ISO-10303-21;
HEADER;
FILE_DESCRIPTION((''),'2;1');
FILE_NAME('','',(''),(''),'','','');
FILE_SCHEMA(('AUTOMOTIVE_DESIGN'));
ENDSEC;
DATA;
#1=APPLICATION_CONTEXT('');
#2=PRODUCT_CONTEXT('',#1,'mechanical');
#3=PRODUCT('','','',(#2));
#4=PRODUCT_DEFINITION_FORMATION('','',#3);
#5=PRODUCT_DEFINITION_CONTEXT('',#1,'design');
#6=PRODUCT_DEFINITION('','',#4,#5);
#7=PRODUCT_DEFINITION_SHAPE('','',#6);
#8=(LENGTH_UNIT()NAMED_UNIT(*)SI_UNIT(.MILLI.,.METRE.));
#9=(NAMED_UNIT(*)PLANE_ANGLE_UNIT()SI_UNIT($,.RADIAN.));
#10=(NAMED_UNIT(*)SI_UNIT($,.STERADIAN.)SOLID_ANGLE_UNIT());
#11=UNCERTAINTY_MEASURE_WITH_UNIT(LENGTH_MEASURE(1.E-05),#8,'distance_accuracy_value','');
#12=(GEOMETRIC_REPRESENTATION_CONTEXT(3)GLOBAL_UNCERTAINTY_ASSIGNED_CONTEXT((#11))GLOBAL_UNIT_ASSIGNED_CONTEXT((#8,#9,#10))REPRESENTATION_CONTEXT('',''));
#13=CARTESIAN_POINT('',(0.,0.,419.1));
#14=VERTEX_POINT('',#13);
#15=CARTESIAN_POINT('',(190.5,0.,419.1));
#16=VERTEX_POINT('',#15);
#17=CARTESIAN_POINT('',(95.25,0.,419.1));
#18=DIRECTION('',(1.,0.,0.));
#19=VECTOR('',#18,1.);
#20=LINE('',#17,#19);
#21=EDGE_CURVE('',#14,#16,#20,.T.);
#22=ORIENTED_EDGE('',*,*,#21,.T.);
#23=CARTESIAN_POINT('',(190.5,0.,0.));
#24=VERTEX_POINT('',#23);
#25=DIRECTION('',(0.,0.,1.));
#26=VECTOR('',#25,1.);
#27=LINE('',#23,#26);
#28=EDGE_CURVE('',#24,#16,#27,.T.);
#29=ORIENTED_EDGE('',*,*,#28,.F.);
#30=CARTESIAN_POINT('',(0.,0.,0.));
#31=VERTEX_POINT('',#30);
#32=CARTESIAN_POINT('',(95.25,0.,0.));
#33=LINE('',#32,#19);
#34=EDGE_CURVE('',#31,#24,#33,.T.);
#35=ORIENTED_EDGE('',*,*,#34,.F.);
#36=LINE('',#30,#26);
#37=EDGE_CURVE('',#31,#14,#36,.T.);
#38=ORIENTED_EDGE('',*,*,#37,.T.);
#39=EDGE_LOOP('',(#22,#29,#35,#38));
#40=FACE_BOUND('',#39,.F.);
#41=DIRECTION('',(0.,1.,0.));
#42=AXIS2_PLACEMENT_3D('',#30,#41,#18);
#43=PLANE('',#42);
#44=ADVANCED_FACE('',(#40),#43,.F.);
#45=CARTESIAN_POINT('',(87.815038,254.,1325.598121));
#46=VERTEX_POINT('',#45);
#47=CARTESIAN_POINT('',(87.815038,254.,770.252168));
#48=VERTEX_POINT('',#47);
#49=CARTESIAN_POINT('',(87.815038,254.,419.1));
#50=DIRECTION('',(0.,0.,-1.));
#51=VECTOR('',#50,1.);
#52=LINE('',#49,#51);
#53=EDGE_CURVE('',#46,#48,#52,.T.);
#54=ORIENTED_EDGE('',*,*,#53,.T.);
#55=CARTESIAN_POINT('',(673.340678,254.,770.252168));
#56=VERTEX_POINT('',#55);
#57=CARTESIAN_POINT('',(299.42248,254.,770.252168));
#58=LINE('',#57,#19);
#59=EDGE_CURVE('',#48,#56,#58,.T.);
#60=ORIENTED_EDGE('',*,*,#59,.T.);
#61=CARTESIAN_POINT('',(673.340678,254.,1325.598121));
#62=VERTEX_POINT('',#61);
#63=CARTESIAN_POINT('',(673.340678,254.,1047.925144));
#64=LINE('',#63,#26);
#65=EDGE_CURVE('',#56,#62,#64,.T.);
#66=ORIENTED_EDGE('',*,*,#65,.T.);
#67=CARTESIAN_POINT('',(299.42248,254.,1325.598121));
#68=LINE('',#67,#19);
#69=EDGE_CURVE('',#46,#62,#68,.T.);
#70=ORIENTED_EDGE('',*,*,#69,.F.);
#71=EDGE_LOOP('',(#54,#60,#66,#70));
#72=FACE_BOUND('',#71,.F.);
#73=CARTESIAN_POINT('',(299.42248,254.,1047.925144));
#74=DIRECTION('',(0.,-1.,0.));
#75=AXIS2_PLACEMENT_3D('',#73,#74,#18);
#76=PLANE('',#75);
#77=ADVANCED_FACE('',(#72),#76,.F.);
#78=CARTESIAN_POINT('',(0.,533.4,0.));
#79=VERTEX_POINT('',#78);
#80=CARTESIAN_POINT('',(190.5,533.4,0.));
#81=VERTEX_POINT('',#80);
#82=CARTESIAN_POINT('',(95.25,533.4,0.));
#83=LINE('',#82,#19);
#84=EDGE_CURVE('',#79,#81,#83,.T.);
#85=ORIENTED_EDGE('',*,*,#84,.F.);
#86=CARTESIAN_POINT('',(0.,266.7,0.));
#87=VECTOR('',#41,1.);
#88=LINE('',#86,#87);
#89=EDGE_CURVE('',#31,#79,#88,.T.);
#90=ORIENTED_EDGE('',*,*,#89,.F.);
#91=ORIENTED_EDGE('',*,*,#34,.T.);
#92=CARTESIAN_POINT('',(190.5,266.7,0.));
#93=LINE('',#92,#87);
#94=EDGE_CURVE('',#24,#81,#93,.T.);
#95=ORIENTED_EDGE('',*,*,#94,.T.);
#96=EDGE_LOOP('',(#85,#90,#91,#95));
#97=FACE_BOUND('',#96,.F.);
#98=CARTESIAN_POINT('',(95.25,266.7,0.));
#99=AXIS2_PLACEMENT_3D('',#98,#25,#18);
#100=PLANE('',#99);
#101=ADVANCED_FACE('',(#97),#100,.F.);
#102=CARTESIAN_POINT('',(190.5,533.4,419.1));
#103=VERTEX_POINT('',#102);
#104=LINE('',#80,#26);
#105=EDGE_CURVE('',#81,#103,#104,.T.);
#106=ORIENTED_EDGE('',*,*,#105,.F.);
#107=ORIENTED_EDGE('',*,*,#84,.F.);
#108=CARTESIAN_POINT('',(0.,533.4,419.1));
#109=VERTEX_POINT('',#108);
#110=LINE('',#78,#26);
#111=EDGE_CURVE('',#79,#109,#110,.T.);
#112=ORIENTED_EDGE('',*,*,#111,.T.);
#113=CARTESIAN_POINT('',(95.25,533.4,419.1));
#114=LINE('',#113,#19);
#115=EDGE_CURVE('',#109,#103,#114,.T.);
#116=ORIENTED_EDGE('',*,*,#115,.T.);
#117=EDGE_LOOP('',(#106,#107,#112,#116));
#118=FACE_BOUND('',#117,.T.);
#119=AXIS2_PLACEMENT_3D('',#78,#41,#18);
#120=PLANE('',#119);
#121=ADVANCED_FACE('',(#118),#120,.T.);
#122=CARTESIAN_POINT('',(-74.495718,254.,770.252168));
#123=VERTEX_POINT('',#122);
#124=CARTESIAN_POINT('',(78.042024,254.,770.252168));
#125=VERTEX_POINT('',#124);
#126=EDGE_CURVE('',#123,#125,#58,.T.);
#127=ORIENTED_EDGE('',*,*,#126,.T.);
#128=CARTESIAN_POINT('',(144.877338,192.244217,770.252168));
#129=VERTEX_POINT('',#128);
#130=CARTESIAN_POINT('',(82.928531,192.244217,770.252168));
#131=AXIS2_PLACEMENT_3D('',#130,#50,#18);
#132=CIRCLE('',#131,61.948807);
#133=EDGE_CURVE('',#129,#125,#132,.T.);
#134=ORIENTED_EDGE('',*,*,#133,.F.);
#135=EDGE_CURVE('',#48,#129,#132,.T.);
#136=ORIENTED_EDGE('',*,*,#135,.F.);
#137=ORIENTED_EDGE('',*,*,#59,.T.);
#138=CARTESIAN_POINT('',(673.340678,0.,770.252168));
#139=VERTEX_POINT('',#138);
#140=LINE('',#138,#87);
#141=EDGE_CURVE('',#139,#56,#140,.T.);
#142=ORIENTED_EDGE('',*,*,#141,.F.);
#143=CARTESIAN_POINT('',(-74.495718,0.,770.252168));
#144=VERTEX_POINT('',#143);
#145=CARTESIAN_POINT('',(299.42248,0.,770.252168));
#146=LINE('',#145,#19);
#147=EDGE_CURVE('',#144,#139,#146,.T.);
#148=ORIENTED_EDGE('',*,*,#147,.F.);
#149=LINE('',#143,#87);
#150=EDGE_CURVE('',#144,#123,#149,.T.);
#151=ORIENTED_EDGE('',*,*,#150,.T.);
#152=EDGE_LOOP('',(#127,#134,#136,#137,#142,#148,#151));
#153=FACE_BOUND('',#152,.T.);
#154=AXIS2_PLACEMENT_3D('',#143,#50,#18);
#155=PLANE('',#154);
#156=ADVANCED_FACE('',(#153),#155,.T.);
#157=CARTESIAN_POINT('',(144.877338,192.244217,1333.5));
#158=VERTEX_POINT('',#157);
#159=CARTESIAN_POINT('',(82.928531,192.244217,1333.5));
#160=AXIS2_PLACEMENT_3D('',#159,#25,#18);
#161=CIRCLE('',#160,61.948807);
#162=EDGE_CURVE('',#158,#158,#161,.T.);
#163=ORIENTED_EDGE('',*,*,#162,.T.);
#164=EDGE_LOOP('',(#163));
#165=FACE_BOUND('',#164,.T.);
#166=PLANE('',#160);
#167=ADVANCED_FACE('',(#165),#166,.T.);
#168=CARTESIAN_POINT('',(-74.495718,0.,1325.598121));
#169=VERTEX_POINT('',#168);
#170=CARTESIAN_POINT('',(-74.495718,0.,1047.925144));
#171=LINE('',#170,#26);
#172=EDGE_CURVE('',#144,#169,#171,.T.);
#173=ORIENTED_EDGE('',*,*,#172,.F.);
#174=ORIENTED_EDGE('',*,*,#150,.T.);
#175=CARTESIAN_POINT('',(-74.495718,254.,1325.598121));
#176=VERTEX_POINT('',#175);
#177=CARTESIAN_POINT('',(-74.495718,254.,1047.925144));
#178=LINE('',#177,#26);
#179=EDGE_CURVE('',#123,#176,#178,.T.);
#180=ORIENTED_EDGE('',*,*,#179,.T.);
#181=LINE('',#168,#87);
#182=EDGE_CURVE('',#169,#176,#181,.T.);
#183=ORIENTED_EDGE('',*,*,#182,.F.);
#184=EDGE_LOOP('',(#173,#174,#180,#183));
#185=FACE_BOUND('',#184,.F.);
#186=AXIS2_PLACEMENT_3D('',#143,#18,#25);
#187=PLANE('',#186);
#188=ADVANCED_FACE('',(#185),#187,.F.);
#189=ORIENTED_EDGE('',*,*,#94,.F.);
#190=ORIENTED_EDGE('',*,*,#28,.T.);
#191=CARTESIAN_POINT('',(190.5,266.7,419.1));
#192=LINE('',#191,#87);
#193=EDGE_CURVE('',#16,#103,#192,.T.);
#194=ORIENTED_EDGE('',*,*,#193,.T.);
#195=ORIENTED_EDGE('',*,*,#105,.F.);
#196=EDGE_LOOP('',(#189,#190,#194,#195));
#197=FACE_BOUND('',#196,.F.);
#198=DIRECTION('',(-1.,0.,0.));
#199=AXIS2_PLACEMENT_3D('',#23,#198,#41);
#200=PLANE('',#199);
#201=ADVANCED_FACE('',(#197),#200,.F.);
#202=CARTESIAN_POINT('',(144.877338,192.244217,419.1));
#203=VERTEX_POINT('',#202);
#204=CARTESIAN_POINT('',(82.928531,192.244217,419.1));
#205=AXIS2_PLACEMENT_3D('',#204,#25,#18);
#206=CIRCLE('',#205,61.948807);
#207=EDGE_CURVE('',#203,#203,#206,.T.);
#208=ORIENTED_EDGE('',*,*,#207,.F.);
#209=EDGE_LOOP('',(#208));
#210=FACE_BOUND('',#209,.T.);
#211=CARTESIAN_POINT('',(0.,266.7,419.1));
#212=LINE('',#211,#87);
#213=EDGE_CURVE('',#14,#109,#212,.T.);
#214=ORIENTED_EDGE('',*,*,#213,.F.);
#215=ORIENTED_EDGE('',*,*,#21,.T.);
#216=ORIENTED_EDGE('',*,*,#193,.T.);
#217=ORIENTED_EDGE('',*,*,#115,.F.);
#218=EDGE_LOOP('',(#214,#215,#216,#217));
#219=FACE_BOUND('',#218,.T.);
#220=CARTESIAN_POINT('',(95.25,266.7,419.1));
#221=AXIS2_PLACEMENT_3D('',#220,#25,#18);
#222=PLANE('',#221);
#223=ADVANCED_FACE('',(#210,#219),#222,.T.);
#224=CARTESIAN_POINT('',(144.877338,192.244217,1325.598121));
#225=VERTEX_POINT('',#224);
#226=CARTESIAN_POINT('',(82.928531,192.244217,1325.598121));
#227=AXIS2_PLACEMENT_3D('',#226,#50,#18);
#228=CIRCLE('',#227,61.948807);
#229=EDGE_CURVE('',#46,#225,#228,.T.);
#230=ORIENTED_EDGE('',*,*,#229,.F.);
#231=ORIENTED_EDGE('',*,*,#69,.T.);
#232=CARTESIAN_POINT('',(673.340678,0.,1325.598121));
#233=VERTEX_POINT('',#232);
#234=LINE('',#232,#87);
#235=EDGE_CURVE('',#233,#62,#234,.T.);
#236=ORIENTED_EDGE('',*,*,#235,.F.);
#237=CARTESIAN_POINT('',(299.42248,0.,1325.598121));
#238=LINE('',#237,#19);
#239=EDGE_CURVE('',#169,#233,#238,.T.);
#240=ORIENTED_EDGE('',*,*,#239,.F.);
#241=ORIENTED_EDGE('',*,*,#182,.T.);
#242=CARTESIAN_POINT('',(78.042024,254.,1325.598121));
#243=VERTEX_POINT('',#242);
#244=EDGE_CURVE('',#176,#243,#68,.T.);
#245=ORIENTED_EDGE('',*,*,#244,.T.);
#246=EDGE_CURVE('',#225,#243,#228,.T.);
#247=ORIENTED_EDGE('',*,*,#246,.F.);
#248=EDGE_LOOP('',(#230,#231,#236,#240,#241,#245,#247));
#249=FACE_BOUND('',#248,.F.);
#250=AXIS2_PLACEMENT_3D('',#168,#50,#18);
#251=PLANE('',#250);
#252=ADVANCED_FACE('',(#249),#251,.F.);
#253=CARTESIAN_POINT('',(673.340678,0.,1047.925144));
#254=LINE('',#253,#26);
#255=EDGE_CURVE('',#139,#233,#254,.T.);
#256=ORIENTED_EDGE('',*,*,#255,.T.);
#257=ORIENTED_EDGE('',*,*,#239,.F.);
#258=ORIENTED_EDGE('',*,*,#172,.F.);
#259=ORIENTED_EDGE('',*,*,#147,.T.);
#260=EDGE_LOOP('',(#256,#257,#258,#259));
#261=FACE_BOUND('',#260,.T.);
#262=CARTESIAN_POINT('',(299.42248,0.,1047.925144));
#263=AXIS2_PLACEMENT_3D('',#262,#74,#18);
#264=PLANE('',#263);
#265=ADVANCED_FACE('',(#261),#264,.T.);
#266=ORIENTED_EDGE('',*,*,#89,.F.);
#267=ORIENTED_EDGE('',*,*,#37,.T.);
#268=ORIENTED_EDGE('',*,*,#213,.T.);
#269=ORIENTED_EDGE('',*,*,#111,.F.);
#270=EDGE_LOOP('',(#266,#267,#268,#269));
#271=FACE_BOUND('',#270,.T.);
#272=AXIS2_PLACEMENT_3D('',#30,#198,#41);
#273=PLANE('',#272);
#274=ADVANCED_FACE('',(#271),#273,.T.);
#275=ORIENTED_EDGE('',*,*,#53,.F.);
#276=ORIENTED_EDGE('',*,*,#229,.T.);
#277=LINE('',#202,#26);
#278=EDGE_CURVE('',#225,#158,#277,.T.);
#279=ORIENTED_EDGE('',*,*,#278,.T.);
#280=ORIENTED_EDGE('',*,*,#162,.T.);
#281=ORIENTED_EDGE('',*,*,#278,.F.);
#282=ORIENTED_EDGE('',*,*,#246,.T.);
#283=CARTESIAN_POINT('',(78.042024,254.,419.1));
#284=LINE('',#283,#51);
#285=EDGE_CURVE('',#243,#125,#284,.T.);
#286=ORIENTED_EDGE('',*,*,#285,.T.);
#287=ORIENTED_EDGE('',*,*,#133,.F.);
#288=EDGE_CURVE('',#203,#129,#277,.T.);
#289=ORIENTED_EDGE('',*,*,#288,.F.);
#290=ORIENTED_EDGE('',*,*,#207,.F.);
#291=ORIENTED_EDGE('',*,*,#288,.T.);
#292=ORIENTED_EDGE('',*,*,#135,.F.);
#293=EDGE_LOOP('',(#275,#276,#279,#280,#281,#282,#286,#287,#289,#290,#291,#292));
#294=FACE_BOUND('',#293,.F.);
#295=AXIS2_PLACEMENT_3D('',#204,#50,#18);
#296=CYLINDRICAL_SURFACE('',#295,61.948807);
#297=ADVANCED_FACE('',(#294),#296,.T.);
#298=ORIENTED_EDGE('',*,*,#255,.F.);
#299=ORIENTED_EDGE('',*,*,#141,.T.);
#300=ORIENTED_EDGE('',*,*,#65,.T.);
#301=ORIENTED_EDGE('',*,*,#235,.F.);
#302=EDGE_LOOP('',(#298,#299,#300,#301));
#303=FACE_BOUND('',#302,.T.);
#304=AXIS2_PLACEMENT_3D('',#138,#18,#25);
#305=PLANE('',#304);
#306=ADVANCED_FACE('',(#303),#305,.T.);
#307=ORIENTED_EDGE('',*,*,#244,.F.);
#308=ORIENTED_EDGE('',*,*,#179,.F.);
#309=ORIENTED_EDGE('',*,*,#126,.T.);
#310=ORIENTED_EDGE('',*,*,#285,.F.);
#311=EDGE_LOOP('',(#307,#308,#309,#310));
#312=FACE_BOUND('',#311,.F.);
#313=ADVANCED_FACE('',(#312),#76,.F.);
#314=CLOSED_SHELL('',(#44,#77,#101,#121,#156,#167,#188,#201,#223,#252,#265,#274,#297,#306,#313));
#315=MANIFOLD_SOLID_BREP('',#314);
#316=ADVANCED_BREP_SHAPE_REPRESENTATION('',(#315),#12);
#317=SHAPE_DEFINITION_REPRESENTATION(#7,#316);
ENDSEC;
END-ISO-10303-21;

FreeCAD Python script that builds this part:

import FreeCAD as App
import Part
import Sketcher
Q = App.Units.Quantity

doc = App.newDocument("Part")
params = doc.addObject("Spreadsheet::Sheet", "Params")
for row, (alias, value) in enumerate([
    ("sketch1_height", "21 in"),
    ("sketch1_width", "7.5 in"),
    ("pad1_length", "16.5 in"),
    ("pad2_length", "36 in"),
    ("pad3_length", "10 in"),
], start=1):
    params.set(f"A{row}", alias)
    params.set(f"B{row}", "=" + value)
    params.setAlias(f"B{row}", alias)

body = doc.addObject("PartDesign::Body", "Body")

sketch1 = body.newObject("Sketcher::SketchObject", "Sketch")
sketch1.AttachmentSupport = (doc.getObject("XY_Plane"), [""])
sketch1.MapMode = "FlatFace"
sketch1.addGeometry([
    Part.LineSegment(App.Vector(0, 533, 0), App.Vector(0, 0, 0)),
    Part.LineSegment(App.Vector(0, 0, 0), App.Vector(190, 0, 0)),
    Part.LineSegment(App.Vector(190, 0, 0), App.Vector(190, 533, 0)),
    Part.LineSegment(App.Vector(190, 533, 0), App.Vector(0, 533, 0)),
], False)
sketch1.addConstraint([
    Sketcher.Constraint("Coincident", 0, 2, 1, 1),
    Sketcher.Constraint("Coincident", 1, 2, 2, 1),
    Sketcher.Constraint("Coincident", 2, 2, 3, 1),
    Sketcher.Constraint("Coincident", 3, 2, 0, 1),
    Sketcher.Constraint("Vertical", 0),
    Sketcher.Constraint("Horizontal", 1),
    Sketcher.Constraint("Vertical", 2),
    Sketcher.Constraint("Horizontal", 3),
    Sketcher.Constraint("Coincident", 0, 2, -1, 1),
    Sketcher.Constraint("DistanceY", 0, 2, 0, 1, Q("21 in")),
    Sketcher.Constraint("DistanceX", 1, 1, 1, 2, Q("7.5 in")),
])
sketch1.setExpression("Constraints[9]", "Params.sketch1_height")
sketch1.setExpression("Constraints[10]", "Params.sketch1_width")
pad1 = body.newObject("PartDesign::Pad", "Pad")
pad1.Profile = sketch1
pad1.setExpression("Length", "Params.pad1_length")

sketch2 = body.newObject("Sketcher::SketchObject", "Sketch001")
sketch2.AttachmentSupport = (doc.getObject("XY_Plane"), [""])
sketch2.MapMode = "FlatFace"
sketch2.AttachmentOffset = App.Placement(App.Vector(0, 0, 16.5 * 25.4), App.Rotation())
sketch2.addGeometry(Part.Circle(App.Vector(83, 192, 0), App.Vector(0, 0, 1), 62), False)
sketch2.addConstraint([
    Sketcher.Constraint("Diameter", 0, Q("123.897614 mm")),
    Sketcher.Constraint("DistanceX", -1, 1, 0, 3, Q("82.928531 mm")),
    Sketcher.Constraint("DistanceY", -1, 1, 0, 3, Q("192.244217 mm")),
])
pad2 = body.newObject("PartDesign::Pad", "Pad001")
pad2.Profile = sketch2
pad2.setExpression("Length", "Params.pad2_length")

sketch3 = body.newObject("Sketcher::SketchObject", "Sketch002")
sketch3.AttachmentSupport = (doc.getObject("XZ_Plane"), [""])
sketch3.MapMode = "FlatFace"
sketch3.addGeometry([
    Part.LineSegment(App.Vector(-74, 1326, 0), App.Vector(-74, 770, 0)),
    Part.LineSegment(App.Vector(-74, 770, 0), App.Vector(673, 770, 0)),
    Part.LineSegment(App.Vector(673, 770, 0), App.Vector(673, 1326, 0)),
    Part.LineSegment(App.Vector(673, 1326, 0), App.Vector(-74, 1326, 0)),
], False)
sketch3.addConstraint([
    Sketcher.Constraint("Coincident", 0, 2, 1, 1),
    Sketcher.Constraint("Coincident", 1, 2, 2, 1),
    Sketcher.Constraint("Coincident", 2, 2, 3, 1),
    Sketcher.Constraint("Coincident", 3, 2, 0, 1),
    Sketcher.Constraint("Vertical", 0),
    Sketcher.Constraint("Horizontal", 1),
    Sketcher.Constraint("Vertical", 2),
    Sketcher.Constraint("Horizontal", 3),
    Sketcher.Constraint("DistanceX", 1, 1, 1, 2, Q("747.836396 mm")),
    Sketcher.Constraint("DistanceY", 0, 2, 0, 1, Q("555.345953 mm")),
    Sketcher.Constraint("DistanceX", -1, 1, 1, 2, Q("673.340678 mm")),
    Sketcher.Constraint("DistanceY", -1, 1, 2, 2, Q("1325.598121 mm")),
])
pad3 = body.newObject("PartDesign::Pad", "Pad002")
pad3.Profile = sketch3
pad3.setExpression("Length", "Params.pad3_length")
pad3.Reversed = True

doc.recompute()
